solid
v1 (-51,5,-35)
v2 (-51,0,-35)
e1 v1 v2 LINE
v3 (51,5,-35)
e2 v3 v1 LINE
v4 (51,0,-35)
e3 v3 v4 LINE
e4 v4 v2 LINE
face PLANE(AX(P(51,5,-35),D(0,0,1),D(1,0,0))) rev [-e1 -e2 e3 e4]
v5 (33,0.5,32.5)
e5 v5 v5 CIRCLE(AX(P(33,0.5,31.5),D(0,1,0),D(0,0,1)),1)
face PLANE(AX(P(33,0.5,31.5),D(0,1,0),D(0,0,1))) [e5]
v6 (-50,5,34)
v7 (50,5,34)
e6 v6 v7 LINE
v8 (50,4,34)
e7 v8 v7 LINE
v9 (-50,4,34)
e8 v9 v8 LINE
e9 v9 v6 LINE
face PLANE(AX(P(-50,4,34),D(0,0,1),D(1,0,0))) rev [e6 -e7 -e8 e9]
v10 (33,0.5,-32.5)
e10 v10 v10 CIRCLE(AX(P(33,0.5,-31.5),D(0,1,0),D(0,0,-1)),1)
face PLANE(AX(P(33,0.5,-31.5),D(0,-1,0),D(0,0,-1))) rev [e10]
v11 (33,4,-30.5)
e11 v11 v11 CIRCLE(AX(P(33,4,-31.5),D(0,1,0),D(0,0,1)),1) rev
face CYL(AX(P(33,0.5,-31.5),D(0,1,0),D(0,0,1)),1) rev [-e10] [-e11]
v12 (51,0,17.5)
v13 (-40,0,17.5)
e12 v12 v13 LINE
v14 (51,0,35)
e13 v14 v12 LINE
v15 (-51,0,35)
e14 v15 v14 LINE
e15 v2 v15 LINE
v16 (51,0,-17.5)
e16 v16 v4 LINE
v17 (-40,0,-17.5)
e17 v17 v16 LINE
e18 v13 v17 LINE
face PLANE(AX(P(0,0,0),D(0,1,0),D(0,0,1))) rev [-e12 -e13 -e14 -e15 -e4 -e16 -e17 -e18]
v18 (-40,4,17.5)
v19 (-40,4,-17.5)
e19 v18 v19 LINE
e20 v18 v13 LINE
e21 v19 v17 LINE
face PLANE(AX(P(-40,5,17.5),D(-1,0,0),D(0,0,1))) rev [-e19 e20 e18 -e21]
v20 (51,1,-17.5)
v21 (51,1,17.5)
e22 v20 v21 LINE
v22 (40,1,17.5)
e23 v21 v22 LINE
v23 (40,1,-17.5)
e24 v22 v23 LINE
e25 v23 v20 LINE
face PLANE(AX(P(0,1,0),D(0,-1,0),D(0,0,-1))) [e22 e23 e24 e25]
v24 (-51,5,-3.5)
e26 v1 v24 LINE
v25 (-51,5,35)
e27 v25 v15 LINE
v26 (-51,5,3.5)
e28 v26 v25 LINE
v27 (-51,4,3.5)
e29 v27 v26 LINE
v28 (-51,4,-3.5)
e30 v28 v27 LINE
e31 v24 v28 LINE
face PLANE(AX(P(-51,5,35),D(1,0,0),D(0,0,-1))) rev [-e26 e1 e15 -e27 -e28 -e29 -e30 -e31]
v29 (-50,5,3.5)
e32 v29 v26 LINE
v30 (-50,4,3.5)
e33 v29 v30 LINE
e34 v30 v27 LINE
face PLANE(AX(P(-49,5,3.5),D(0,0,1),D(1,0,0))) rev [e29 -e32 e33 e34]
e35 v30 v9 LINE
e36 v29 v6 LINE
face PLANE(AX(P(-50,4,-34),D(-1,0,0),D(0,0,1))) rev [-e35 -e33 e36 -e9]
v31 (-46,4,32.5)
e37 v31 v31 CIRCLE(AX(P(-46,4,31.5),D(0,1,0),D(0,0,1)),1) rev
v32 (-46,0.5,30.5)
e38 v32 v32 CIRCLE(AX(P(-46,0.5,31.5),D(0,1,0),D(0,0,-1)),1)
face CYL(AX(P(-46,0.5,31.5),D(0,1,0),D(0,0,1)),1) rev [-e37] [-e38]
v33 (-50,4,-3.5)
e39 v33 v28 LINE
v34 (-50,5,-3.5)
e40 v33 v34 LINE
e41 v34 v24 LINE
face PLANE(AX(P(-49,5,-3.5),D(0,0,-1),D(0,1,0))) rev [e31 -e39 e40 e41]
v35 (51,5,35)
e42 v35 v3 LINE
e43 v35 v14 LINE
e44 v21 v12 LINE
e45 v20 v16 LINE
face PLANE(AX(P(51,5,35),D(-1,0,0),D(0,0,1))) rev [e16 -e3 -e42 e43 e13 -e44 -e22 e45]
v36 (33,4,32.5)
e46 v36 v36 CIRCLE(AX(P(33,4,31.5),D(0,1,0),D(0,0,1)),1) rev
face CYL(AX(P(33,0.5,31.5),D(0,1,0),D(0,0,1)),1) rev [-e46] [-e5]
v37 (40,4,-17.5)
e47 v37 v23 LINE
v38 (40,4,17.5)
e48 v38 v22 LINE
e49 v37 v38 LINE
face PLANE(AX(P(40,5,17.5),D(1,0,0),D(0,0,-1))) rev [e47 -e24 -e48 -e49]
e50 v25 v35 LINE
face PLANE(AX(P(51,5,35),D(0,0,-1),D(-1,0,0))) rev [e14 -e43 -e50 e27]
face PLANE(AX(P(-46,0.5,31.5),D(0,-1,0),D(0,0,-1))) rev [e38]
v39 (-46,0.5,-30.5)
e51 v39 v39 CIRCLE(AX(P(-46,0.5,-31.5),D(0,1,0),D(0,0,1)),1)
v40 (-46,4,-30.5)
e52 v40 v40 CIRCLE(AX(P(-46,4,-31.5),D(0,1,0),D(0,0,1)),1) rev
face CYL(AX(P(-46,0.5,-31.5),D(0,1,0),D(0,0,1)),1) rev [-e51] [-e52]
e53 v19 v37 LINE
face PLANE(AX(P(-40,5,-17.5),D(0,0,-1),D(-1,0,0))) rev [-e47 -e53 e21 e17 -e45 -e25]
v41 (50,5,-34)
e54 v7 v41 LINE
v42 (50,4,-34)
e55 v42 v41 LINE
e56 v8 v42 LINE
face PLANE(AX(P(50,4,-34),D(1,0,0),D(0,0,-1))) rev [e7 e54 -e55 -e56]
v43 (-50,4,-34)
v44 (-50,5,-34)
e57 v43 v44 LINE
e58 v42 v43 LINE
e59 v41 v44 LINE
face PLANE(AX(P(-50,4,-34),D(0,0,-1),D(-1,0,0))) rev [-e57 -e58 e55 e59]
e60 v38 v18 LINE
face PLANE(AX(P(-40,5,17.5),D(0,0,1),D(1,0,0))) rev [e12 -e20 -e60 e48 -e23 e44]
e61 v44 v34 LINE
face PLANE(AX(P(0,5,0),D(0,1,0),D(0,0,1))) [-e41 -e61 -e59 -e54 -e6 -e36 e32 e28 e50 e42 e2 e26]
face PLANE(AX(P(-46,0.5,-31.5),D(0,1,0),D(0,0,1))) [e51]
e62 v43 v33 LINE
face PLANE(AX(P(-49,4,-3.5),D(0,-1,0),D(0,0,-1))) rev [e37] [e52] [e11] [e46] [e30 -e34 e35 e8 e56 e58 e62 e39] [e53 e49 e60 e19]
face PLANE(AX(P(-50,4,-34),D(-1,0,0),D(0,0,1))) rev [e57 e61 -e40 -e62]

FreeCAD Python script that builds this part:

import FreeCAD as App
import Part
import Sketcher
Q = App.Units.Quantity


def add_polygon(sketch, points):
    """Adds a closed chain of lines whose ends are joined by coincident constraints."""
    first, n = sketch.GeometryCount, len(points)
    for a, b in zip(points, points[1:] + points[:1]):
        sketch.addGeometry(Part.LineSegment(App.Vector(*a, 0), App.Vector(*b, 0)), False)
    for i in range(n):
        sketch.addConstraint(Sketcher.Constraint("Coincident", first + i, 2, first + (i + 1) % n, 1))

doc = App.newDocument("Part")
body = doc.addObject("PartDesign::Body", "Body")

# Sketch on XZ plane
sketch1 = body.newObject("Sketcher::SketchObject", "Sketch")
sketch1.AttachmentSupport = (doc.getObject("XZ_Plane"), [""])
sketch1.MapMode = "FlatFace"
add_polygon(sketch1, [(-51, -35), (-51, 35), (51, 35), (51, -35)])  # lines 0-3
sketch1.addConstraint([
    Sketcher.Constraint("Vertical", 0),
    Sketcher.Constraint("Horizontal", 1),
    Sketcher.Constraint("Vertical", 2),
    Sketcher.Constraint("Horizontal", 3),
    Sketcher.Constraint("Symmetric", 0, 2, 2, 2, -1, 1),
    Sketcher.Constraint("DistanceX", 1, 1, 1, 2, Q("102 mm")),
    Sketcher.Constraint("DistanceY", 0, 1, 0, 2, Q("70 mm")),
])
pad1 = body.newObject("PartDesign::Pad", "Pad")
pad1.Profile = sketch1
pad1.Length = 5
pad1.Reversed = True

# Sketch on XZ plane
sketch2 = body.newObject("Sketcher::SketchObject", "Sketch001")
sketch2.AttachmentSupport = (doc.getObject("XZ_Plane"), [""])
sketch2.MapMode = "FlatFace"
sketch2.AttachmentOffset = App.Placement(App.Vector(0, 0, -5), App.Rotation())
sketch2.addGeometry([
    Part.Circle(App.Vector(-46, -31.5, 0), App.Vector(0, 0, 1), 1),
    Part.Circle(App.Vector(33, -31.5, 0), App.Vector(0, 0, 1), 1),
    Part.Circle(App.Vector(33, 31.5, 0), App.Vector(0, 0, 1), 1),
    Part.Circle(App.Vector(-46, 31.5, 0), App.Vector(0, 0, 1), 1),
], False)
sketch2.addConstraint([
    Sketcher.Constraint("Equal", 0, 1),
    Sketcher.Constraint("Equal", 1, 2),
    Sketcher.Constraint("Equal", 2, 3),
    Sketcher.Constraint("Symmetric", 1, 3, 2, 3, -1),
    Sketcher.Constraint("Symmetric", 0, 3, 3, 3, -1),
    Sketcher.Constraint("Horizontal", 0, 3, 1, 3),
    Sketcher.Constraint("Diameter", 0, Q("2 mm")),
    Sketcher.Constraint("DistanceX", 0, 3, -1, 1, Q("46 mm")),
    Sketcher.Constraint("DistanceX", -1, 1, 1, 3, Q("33 mm")),
    Sketcher.Constraint("DistanceY", 1, 3, 2, 3, Q("63 mm")),
])
pocket1 = body.newObject("PartDesign::Pocket", "Pocket")
pocket1.Profile = sketch2
pocket1.Length = 4.5
pocket1.Reversed = True

# Sketch on YZ plane
sketch3 = body.newObject("Sketcher::SketchObject", "Sketch002")
sketch3.AttachmentSupport = (doc.getObject("YZ_Plane"), [""])
sketch3.MapMode = "FlatFace"
sketch3.AttachmentOffset = App.Placement(App.Vector(0, 0, -51), App.Rotation())
add_polygon(sketch3, [(5, -3.5), (4, -3.5), (4, 3.5), (5, 3.5)])  # lines 0-3
sketch3.addConstraint([
    Sketcher.Constraint("Horizontal", 0),
    Sketcher.Constraint("Vertical", 1),
    Sketcher.Constraint("Horizontal", 2),
    Sketcher.Constraint("Vertical", 3),
    Sketcher.Constraint("DistanceX", 0, 2, 0, 1, Q("1 mm")),
    Sketcher.Constraint("DistanceY", 1, 1, 1, 2, Q("7 mm")),
    Sketcher.Constraint("DistanceX", -1, 1, 0, 2, Q("4 mm")),
    Sketcher.Constraint("DistanceY", 0, 2, -1, 1, Q("3.5 mm")),
])
pocket2 = body.newObject("PartDesign::Pocket", "Pocket001")
pocket2.Profile = sketch3
pocket2.Length = 2
pocket2.Reversed = True

# Sketch on XZ plane
sketch4 = body.newObject("Sketcher::SketchObject", "Sketch003")
sketch4.AttachmentSupport = (doc.getObject("XZ_Plane"), [""])
sketch4.MapMode = "FlatFace"
add_polygon(sketch4, [(-40, 17.5), (-40, -17.5), (40, -17.5), (40, 17.5)])  # lines 0-3
sketch4.addConstraint([
    Sketcher.Constraint("Vertical", 0),
    Sketcher.Constraint("Horizontal", 1),
    Sketcher.Constraint("Vertical", 2),
    Sketcher.Constraint("Horizontal", 3),
    Sketcher.Constraint("Symmetric", 0, 2, 2, 2, -1, 1),
    Sketcher.Constraint("DistanceX", 1, 1, 1, 2, Q("80 mm")),
    Sketcher.Constraint("DistanceY", 0, 2, 0, 1, Q("35 mm")),
])
pocket3 = body.newObject("PartDesign::Pocket", "Pocket002")
pocket3.Profile = sketch4
pocket3.Length = 5

# Sketch on XZ plane
sketch5 = body.newObject("Sketcher::SketchObject", "Sketch004")
sketch5.AttachmentSupport = (doc.getObject("XZ_Plane"), [""])
sketch5.MapMode = "FlatFace"
add_polygon(sketch5, [(40, 17.5), (40, -17.5), (51, -17.5), (51, 17.5)])  # lines 0-3
sketch5.addConstraint([
    Sketcher.Constraint("Vertical", 0),
    Sketcher.Constraint("Horizontal", 1),
    Sketcher.Constraint("Vertical", 2),
    Sketcher.Constraint("Horizontal", 3),
    Sketcher.Constraint("DistanceX", 1, 1, 1, 2, Q("11 mm")),
    Sketcher.Constraint("DistanceY", 0, 2, 0, 1, Q("35 mm")),
    Sketcher.Constraint("DistanceX", -1, 1, 0, 2, Q("40 mm")),
    Sketcher.Constraint("DistanceY", 0, 2, -1, 1, Q("17.5 mm")),
])
pocket4 = body.newObject("PartDesign::Pocket", "Pocket003")
pocket4.Profile = sketch5
pocket4.Length = 1

# Sketch on XZ plane
sketch6 = body.newObject("Sketcher::SketchObject", "Sketch005")
sketch6.AttachmentSupport = (doc.getObject("XZ_Plane"), [""])
sketch6.MapMode = "FlatFace"
sketch6.AttachmentOffset = App.Placement(App.Vector(0, 0, -5), App.Rotation())
add_polygon(sketch6, [(-50, -34), (-50, 34), (50, 34), (50, -34)])  # lines 0-3
sketch6.addConstraint([
    Sketcher.Constraint("Vertical", 0),
    Sketcher.Constraint("Horizontal", 1),
    Sketcher.Constraint("Vertical", 2),
    Sketcher.Constraint("Horizontal", 3),
    Sketcher.Constraint("Symmetric", 0, 2, 2, 2, -1, 1),
    Sketcher.Constraint("DistanceX", 1, 1, 1, 2, Q("100 mm")),
    Sketcher.Constraint("DistanceY", 0, 1, 0, 2, Q("68 mm")),
])
pocket5 = body.newObject("PartDesign::Pocket", "Pocket004")
pocket5.Profile = sketch6
pocket5.Length = 1
pocket5.Reversed = True

doc.recompute()
